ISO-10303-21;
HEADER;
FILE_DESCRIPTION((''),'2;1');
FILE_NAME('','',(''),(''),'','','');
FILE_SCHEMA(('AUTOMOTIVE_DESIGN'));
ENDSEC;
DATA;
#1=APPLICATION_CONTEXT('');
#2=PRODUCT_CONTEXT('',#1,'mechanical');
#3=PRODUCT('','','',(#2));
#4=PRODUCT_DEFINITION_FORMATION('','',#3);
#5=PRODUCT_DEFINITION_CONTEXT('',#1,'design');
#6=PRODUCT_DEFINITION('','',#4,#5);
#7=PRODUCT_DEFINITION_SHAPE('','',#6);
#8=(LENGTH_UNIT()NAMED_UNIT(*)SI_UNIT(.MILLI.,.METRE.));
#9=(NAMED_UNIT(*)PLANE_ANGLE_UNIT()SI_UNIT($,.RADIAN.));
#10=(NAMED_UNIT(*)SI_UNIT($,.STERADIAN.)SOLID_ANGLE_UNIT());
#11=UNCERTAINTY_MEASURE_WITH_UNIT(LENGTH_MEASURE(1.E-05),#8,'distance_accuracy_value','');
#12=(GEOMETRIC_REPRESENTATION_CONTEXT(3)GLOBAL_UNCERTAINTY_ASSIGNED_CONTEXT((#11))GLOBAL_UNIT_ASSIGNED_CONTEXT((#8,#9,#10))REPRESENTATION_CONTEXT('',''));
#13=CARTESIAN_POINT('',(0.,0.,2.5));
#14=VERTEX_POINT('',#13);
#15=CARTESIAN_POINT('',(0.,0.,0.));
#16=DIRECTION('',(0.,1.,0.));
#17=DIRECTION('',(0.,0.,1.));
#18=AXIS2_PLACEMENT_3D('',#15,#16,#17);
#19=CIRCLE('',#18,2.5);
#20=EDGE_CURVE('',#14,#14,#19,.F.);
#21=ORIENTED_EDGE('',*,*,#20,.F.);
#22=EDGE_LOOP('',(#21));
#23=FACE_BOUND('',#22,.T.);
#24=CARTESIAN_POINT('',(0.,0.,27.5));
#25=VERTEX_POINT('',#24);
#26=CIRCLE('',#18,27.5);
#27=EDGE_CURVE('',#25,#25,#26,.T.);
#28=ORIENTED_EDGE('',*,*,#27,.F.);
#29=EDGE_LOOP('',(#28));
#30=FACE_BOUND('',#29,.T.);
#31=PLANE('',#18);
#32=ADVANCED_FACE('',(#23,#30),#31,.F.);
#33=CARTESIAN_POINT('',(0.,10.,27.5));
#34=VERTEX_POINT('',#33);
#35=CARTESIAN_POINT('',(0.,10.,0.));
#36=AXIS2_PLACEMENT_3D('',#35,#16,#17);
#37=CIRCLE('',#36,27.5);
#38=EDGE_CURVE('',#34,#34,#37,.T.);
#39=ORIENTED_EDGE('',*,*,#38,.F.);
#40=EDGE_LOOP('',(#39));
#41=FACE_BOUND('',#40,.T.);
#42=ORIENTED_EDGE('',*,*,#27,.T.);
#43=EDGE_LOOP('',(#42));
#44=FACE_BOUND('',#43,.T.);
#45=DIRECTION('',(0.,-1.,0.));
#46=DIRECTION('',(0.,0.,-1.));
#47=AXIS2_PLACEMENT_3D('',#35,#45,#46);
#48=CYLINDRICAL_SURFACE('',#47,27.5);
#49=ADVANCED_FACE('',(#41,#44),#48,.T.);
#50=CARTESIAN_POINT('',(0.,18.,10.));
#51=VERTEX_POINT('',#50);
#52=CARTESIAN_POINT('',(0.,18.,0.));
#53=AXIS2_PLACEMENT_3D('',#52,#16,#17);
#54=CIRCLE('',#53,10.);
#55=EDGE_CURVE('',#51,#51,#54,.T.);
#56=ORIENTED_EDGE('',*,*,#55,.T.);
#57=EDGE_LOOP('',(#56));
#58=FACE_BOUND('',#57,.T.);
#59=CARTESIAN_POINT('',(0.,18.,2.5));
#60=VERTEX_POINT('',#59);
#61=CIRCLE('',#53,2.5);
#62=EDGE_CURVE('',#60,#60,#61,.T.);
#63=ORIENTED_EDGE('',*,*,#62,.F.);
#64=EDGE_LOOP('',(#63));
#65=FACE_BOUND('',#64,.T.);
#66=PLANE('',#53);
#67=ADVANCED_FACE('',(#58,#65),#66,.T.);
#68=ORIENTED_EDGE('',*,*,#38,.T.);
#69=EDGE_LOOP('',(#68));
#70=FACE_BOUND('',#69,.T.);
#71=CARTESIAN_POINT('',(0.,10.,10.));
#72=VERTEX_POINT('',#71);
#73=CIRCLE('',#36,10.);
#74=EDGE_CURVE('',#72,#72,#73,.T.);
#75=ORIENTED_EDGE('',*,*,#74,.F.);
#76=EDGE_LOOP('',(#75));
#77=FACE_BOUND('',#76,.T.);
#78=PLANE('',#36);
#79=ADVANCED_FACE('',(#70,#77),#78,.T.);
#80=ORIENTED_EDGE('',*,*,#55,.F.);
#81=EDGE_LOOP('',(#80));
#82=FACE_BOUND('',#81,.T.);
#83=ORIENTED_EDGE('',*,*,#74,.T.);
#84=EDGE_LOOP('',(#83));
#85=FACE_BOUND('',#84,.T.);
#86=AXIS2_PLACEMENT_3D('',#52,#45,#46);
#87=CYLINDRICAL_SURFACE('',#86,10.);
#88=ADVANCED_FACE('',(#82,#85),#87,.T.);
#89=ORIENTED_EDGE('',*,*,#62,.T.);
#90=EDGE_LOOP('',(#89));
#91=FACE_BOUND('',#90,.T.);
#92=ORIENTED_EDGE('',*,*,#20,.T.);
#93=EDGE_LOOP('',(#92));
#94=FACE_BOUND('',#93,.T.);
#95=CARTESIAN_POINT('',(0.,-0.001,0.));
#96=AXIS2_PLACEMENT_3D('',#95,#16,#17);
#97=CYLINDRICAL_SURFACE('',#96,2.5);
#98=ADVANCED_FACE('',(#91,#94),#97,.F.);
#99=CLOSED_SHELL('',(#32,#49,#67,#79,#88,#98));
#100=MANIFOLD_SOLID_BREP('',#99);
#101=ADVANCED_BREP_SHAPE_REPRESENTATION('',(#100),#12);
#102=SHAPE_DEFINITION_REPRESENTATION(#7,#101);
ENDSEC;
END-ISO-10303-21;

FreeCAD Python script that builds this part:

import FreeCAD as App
import Part
import Sketcher
from FreeCAD import Vector

doc = App.newDocument("Part")
body = doc.addObject("PartDesign::Body", "Body")

# Sketch on XZ plane
sketch1 = body.newObject("Sketcher::SketchObject", "Sketch")
sketch1.AttachmentSupport = (doc.getObject("XZ_Plane"), [""])
sketch1.MapMode = "FlatFace"
sketch1.addGeometry(Part.Circle(Vector(0, 0, 0), Vector(0, 0, 1), 28), False)
sketch1.addConstraint([
    Sketcher.Constraint("Coincident", 0, 3, -1, 1),
    Sketcher.Constraint("Diameter", 0, 55.0),
])
pad1 = body.newObject("PartDesign::Pad", "Pad")
pad1.Profile = sketch1
pad1.Length = 10
pad1.Reversed = True

# Sketch on XZ plane
sketch2 = body.newObject("Sketcher::SketchObject", "Sketch001")
sketch2.AttachmentSupport = (doc.getObject("XZ_Plane"), [""])
sketch2.MapMode = "FlatFace"
sketch2.AttachmentOffset = App.Placement(Vector(0, 0, -10), App.Rotation())
sketch2.addGeometry(Part.Circle(Vector(0, 0, 0), Vector(0, 0, 1), 10), False)
sketch2.addConstraint([
    Sketcher.Constraint("Coincident", 0, 3, -1, 1),
    Sketcher.Constraint("Diameter", 0, 20.0),
])
pad2 = body.newObject("PartDesign::Pad", "Pad001")
pad2.Profile = sketch2
pad2.Length = 8
pad2.Reversed = True

# Sketch on XZ plane
sketch3 = body.newObject("Sketcher::SketchObject", "Sketch002")
sketch3.AttachmentSupport = (doc.getObject("XZ_Plane"), [""])
sketch3.MapMode = "FlatFace"
sketch3.AttachmentOffset = App.Placement(Vector(0, 0, -18), App.Rotation())
sketch3.addGeometry(Part.Circle(Vector(0, 0, 0), Vector(0, 0, 1), 2.5), False)
sketch3.addConstraint([
    Sketcher.Constraint("Coincident", 0, 3, -1, 1),
    Sketcher.Constraint("Diameter", 0, 5.0),
])
pocket1 = body.newObject("PartDesign::Pocket", "Pocket")
pocket1.Profile = sketch3
pocket1.Type = "UpToFirst"
pocket1.Reversed = True

doc.recompute()
